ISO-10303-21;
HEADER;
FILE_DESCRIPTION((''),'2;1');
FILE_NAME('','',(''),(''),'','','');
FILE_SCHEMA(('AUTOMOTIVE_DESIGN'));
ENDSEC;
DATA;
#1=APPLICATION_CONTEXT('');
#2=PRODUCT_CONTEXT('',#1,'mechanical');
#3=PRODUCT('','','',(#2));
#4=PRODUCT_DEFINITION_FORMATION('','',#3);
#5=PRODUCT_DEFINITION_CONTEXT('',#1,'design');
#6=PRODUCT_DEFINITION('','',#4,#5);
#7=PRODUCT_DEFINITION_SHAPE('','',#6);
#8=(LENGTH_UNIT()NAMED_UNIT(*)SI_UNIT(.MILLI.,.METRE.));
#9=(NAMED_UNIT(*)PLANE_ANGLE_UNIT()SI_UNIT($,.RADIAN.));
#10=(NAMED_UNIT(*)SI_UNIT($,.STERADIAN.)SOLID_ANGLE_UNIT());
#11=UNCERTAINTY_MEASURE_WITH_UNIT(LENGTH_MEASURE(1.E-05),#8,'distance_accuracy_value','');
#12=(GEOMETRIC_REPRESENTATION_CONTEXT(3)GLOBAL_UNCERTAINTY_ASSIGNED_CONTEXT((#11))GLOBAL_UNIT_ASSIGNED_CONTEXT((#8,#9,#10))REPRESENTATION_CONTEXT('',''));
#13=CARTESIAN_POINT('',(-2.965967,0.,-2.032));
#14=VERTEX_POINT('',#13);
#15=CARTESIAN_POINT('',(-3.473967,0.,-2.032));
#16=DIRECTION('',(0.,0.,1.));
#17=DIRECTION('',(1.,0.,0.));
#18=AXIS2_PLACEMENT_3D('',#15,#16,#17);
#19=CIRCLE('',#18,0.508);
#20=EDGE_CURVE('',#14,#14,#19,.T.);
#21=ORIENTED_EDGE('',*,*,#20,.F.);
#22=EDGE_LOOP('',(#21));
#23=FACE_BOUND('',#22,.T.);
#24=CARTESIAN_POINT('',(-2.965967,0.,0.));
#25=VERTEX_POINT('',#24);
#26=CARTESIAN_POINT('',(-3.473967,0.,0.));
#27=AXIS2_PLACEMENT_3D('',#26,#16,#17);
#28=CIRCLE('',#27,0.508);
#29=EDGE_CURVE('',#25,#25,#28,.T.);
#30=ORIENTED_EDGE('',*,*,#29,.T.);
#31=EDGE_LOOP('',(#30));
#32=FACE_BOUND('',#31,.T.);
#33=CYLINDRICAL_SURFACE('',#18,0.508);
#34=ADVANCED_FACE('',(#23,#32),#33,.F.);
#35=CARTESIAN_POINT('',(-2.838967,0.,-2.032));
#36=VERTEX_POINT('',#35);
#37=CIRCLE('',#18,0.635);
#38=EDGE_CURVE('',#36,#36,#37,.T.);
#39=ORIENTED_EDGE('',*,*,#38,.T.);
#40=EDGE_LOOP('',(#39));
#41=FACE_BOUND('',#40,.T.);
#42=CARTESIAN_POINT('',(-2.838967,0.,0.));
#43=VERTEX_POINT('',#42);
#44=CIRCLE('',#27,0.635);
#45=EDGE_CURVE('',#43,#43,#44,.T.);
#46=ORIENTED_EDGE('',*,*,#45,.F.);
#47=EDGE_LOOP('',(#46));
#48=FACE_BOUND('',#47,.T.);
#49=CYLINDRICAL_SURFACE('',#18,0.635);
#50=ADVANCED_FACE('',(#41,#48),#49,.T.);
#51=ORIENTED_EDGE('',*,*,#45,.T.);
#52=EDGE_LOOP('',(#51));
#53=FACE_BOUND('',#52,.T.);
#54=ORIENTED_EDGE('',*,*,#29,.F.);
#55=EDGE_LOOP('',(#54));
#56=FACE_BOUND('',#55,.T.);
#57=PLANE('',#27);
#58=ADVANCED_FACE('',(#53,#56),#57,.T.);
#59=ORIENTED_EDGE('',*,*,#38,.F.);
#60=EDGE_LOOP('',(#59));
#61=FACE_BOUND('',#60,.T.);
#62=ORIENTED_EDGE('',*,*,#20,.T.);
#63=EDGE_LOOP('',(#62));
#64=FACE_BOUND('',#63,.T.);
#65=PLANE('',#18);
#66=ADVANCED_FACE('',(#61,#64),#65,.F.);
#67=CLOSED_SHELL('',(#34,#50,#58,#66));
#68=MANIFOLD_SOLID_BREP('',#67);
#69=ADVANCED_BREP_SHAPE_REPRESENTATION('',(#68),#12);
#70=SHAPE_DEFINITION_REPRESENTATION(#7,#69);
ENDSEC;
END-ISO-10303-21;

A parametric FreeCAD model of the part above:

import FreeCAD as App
import Part
import Sketcher

V = App.Vector
Q = App.Units.Quantity

doc = App.newDocument("Part")
body = doc.addObject("PartDesign::Body", "Body")

# Sketch on XY plane
sketch1 = doc.addObject("Sketcher::SketchObject", "Sketch")
body.addObject(sketch1)
sketch1.AttachmentSupport = (doc.XY_Plane, [""])
sketch1.MapMode = "FlatFace"
sketch1.addGeometry([
    Part.Circle(V(-3.5, 0, 0), V(0, 0, 1), 0.6),
    Part.Circle(V(-3.5, 0, 0), V(0, 0, 1), 0.5),
], False)
sketch1.addConstraint([
    Sketcher.Constraint("Coincident", 1, 3, 0, 3),
    Sketcher.Constraint("PointOnObject", 0, 3, -1),
    Sketcher.Constraint("Diameter", 0, Q("0.05 in")),
    Sketcher.Constraint("Diameter", 1, Q("0.04 in")),
    Sketcher.Constraint("DistanceX", 0, 3, -1, 1, Q("3.473967 mm")),
])
pad1 = doc.addObject("PartDesign::Pad", "Pad")
body.addObject(pad1)
pad1.Profile = sketch1
pad1.Length = Q("0.08 in")
pad1.Reversed = True

doc.recompute()
